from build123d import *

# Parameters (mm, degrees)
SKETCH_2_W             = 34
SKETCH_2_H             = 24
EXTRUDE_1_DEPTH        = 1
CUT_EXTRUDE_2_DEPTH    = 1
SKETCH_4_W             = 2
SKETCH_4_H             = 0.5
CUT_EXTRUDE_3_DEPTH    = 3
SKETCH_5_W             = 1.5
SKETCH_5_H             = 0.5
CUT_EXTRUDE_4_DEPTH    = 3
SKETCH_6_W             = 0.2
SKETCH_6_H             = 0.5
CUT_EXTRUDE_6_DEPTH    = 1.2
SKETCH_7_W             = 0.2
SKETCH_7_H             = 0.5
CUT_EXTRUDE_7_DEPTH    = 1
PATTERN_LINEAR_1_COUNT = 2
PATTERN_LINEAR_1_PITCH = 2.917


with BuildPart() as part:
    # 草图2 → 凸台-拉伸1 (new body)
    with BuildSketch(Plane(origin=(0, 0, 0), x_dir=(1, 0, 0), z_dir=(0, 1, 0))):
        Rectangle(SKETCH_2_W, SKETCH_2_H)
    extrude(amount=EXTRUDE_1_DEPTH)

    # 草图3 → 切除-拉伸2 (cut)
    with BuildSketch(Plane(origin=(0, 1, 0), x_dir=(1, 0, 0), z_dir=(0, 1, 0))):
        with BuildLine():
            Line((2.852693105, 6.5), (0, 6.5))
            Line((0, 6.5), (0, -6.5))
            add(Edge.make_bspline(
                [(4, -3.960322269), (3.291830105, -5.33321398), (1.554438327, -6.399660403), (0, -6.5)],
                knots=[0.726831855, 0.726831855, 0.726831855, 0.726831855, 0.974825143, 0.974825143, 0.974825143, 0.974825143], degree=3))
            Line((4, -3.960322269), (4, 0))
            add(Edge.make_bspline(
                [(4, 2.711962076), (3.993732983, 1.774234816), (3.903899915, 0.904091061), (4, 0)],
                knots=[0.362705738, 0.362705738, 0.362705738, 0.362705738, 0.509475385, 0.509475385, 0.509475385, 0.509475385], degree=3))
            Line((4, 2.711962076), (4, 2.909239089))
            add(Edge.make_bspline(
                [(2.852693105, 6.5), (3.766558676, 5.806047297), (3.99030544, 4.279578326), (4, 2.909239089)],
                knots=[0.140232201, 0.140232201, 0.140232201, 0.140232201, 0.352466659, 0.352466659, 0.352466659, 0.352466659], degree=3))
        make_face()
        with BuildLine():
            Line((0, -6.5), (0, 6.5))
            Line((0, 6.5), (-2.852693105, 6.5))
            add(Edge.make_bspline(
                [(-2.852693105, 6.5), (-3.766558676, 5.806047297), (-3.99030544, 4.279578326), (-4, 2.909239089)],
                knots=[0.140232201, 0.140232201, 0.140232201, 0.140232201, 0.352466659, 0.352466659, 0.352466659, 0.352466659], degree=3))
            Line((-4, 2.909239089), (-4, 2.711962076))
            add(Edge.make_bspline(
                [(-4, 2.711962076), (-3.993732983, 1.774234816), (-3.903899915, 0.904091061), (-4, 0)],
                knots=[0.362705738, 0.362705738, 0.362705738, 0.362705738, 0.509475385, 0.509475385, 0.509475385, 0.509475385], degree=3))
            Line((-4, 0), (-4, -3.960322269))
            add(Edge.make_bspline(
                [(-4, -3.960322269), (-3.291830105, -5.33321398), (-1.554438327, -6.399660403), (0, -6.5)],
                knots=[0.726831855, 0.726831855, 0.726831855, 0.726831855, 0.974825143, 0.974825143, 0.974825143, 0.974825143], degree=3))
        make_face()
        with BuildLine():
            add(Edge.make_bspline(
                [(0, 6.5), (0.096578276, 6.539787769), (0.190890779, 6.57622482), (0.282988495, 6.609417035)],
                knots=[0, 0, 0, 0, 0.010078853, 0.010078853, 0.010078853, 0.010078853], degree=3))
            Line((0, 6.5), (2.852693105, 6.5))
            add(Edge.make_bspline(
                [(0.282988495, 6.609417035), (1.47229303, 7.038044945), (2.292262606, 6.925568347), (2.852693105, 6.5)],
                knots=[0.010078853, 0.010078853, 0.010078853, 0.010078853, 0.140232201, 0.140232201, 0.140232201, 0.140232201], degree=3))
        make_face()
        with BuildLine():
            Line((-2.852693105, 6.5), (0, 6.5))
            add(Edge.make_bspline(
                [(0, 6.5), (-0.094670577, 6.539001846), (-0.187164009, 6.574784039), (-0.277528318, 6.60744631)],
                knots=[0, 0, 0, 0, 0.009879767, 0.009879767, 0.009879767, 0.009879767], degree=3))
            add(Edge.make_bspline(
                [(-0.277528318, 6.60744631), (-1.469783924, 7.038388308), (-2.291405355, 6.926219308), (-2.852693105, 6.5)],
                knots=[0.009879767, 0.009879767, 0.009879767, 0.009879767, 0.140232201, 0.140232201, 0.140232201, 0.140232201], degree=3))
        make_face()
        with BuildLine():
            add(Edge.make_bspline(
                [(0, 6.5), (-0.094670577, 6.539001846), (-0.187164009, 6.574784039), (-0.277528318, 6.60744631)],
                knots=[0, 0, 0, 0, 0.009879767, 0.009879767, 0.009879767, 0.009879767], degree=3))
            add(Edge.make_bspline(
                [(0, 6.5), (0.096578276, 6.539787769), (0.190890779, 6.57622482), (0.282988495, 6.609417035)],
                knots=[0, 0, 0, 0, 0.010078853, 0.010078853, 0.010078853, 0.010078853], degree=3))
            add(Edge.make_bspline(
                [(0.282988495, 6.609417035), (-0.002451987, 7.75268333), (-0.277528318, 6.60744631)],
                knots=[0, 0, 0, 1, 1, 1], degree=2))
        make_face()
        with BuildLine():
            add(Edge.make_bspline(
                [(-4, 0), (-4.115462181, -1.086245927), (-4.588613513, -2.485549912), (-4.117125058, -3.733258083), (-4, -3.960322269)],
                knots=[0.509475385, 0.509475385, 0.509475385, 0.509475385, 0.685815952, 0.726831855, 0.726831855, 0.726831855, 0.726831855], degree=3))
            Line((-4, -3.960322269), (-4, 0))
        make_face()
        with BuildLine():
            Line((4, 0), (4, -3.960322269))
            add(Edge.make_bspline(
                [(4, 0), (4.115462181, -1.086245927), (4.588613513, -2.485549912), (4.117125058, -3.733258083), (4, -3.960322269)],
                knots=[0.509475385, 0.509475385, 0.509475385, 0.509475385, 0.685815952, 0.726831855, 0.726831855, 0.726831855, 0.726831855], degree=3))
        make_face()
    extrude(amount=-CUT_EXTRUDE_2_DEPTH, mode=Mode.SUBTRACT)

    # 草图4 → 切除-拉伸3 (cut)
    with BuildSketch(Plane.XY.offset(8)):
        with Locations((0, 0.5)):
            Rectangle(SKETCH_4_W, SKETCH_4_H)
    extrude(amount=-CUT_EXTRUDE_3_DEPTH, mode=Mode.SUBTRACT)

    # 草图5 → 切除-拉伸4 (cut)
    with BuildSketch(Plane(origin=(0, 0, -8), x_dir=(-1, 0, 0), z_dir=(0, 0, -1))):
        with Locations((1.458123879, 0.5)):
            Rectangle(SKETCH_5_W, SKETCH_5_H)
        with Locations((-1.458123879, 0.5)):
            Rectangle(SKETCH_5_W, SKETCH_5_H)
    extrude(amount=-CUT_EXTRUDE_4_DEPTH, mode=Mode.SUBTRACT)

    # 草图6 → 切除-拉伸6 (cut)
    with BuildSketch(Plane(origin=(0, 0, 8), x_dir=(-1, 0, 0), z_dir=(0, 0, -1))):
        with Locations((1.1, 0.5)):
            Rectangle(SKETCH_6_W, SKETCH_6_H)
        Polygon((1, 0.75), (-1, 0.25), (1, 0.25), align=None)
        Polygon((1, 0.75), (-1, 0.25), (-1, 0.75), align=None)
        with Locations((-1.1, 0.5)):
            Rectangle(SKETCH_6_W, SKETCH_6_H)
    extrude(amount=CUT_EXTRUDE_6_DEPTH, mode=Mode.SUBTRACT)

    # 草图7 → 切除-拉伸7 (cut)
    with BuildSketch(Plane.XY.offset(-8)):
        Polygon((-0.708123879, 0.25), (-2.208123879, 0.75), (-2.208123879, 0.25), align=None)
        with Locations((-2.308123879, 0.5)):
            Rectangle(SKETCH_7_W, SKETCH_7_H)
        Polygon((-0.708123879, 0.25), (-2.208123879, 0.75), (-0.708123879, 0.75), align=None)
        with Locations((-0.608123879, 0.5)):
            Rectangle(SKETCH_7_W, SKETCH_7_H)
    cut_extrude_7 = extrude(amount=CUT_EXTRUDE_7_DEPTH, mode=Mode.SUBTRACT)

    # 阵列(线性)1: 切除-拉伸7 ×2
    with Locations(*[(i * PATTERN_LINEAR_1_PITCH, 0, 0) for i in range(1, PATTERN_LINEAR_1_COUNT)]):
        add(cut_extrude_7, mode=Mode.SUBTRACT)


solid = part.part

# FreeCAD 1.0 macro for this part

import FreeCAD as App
import Part
import Sketcher
Q = App.Units.Quantity

doc = App.newDocument("Part")
params = doc.addObject("Spreadsheet::Sheet", "Params")
for row, (alias, value) in enumerate([
    ("sketch1_width", "34 mm"),
    ("sketch1_height", "24 mm"),
    ("pad1_length", "1 mm"),
    ("pocket1_length", "1 mm"),
    ("sketch3_width", "2 mm"),
    ("sketch3_height", "0.5 mm"),
    ("pocket2_length", "3 mm"),
    ("sketch4_width", "1.5 mm"),
    ("sketch4_height", "0.5 mm"),
    ("pocket3_length", "3 mm"),
    ("sketch5_width", "2.4 mm"),
    ("sketch5_height", "0.5 mm"),
    ("pocket4_length", "1.2 mm"),
    ("sketch6_width", "1.9 mm"),
    ("sketch6_height", "0.5 mm"),
    ("pocket5_length", "1 mm"),
    ("linearpattern_pitch", "2.917 mm"),
], start=1):
    params.set(f"A{row}", alias)
    params.set(f"B{row}", "=" + value)
    params.setAlias(f"B{row}", alias)

body = doc.addObject("PartDesign::Body", "Body")

# Sketch on XZ plane
sketch1 = body.newObject("Sketcher::SketchObject", "Sketch")
sketch1.AttachmentSupport = (doc.getObject("XZ_Plane"), [""])
sketch1.MapMode = "FlatFace"
sketch1.addGeometry([
    Part.LineSegment(App.Vector(-17, -12, 0), App.Vector(-17, 12, 0)),
    Part.LineSegment(App.Vector(-17, 12, 0), App.Vector(17, 12, 0)),
    Part.LineSegment(App.Vector(17, 12, 0), App.Vector(17, -12, 0)),
    Part.LineSegment(App.Vector(17, -12, 0), App.Vector(-17, -12, 0)),
], False)
sketch1.addConstraint([
    Sketcher.Constraint("Coincident", 0, 2, 1, 1),
    Sketcher.Constraint("Coincident", 1, 2, 2, 1),
    Sketcher.Constraint("Coincident", 2, 2, 3, 1),
    Sketcher.Constraint("Coincident", 3, 2, 0, 1),
    Sketcher.Constraint("Vertical", 0),
    Sketcher.Constraint("Horizontal", 1),
    Sketcher.Constraint("Vertical", 2),
    Sketcher.Constraint("Horizontal", 3),
    Sketcher.Constraint("Symmetric", 0, 2, 2, 2, -1, 1),
    Sketcher.Constraint("DistanceX", 1, 1, 1, 2, Q("34 mm")),
    Sketcher.Constraint("DistanceY", 0, 1, 0, 2, Q("24 mm")),
])
sketch1.setExpression("Constraints[9]", "Params.sketch1_width")
sketch1.setExpression("Constraints[10]", "Params.sketch1_height")
pad1 = body.newObject("PartDesign::Pad", "Pad")
pad1.Profile = sketch1
pad1.setExpression("Length", "Params.pad1_length")
pad1.Reversed = True

# Sketch on XZ plane
sketch2 = body.newObject("Sketcher::SketchObject", "Sketch001")
sketch2.AttachmentSupport = (doc.getObject("XZ_Plane"), [""])
sketch2.MapMode = "FlatFace"
sketch2.AttachmentOffset = App.Placement(App.Vector(0, 0, -1), App.Rotation())
sketch2.addGeometry([
    Part.BSplineCurve([App.Vector(-2.852693, -6.5, 0), App.Vector(-3.766559, -5.806047, 0), App.Vector(-3.990305, -4.279578, 0), App.Vector(-4, -2.909239, 0)], [4, 4], [0.140232201, 0.352466659], False, 3, [1, 1, 1, 1], False),  # 0
    Part.LineSegment(App.Vector(-4, -2.909239, 0), App.Vector(-4, -2.711962, 0)),  # 1
    Part.BSplineCurve([App.Vector(-4, -2.711962, 0), App.Vector(-3.993733, -1.774235, 0), App.Vector(-3.9039, -0.904091, 0), App.Vector(-4, 0, 0)], [4, 4], [0.362705738, 0.509475385], False, 3, [1, 1, 1, 1], False),  # 2
    Part.BSplineCurve([App.Vector(-4, 0, 0), App.Vector(-4.115462, 1.086246, 0), App.Vector(-4.588614, 2.48555, 0), App.Vector(-4.117125, 3.733258, 0), App.Vector(-4, 3.960322, 0)], [4, 1, 4], [0.509475385, 0.685815952, 0.726831855], False, 3, [1, 1, 1, 1, 1], False),  # 3
    Part.BSplineCurve([App.Vector(-4, 3.960322, 0), App.Vector(-3.29183, 5.333214, 0), App.Vector(-1.554438, 6.39966, 0), App.Vector(0, 6.5, 0)], [4, 4], [0.726831855, 0.974825143], False, 3, [1, 1, 1, 1], False),  # 4
    Part.BSplineCurve([App.Vector(4, 3.960322, 0), App.Vector(3.29183, 5.333214, 0), App.Vector(1.554438, 6.39966, 0), App.Vector(0, 6.5, 0)], [4, 4], [0.726831855, 0.974825143], False, 3, [1, 1, 1, 1], False),  # 5
    Part.BSplineCurve([App.Vector(4, 0, 0), App.Vector(4.115462, 1.086246, 0), App.Vector(4.588614, 2.48555, 0), App.Vector(4.117125, 3.733258, 0), App.Vector(4, 3.960322, 0)], [4, 1, 4], [0.509475385, 0.685815952, 0.726831855], False, 3, [1, 1, 1, 1, 1], False),  # 6
    Part.BSplineCurve([App.Vector(4, -2.711962, 0), App.Vector(3.993733, -1.774235, 0), App.Vector(3.9039, -0.904091, 0), App.Vector(4, 0, 0)], [4, 4], [0.362705738, 0.509475385], False, 3, [1, 1, 1, 1], False),  # 7
    Part.LineSegment(App.Vector(4, -2.711962, 0), App.Vector(4, -2.909239, 0)),  # 8
    Part.BSplineCurve([App.Vector(2.852693, -6.5, 0), App.Vector(3.766559, -5.806047, 0), App.Vector(3.990305, -4.279578, 0), App.Vector(4, -2.909239, 0)], [4, 4], [0.140232201, 0.352466659], False, 3, [1, 1, 1, 1], False),  # 9
    Part.BSplineCurve([App.Vector(0.282988, -6.609417, 0), App.Vector(1.472293, -7.038045, 0), App.Vector(2.292263, -6.925568, 0), App.Vector(2.852693, -6.5, 0)], [4, 4], [0.010078853, 0.140232201], False, 3, [1, 1, 1, 1], False),  # 10
    Part.BSplineCurve([App.Vector(0.282988, -6.609417, 0), App.Vector(-0.002452, -7.752683, 0), App.Vector(-0.277528, -6.607446, 0)], [3, 3], [0, 1], False, 2, [1, 1, 1], False),  # 11
    Part.BSplineCurve([App.Vector(-0.277528, -6.607446, 0), App.Vector(-1.469784, -7.038388, 0), App.Vector(-2.291405, -6.926219, 0), App.Vector(-2.852693, -6.5, 0)], [4, 4], [0.009879767, 0.140232201], False, 3, [1, 1, 1, 1], False),  # 12
], False)
sketch2.addConstraint([
    Sketcher.Constraint("Block", 0),
    Sketcher.Constraint("Block", 2),
    Sketcher.Constraint("Block", 3),
    Sketcher.Constraint("Block", 4),
    Sketcher.Constraint("Block", 5),
    Sketcher.Constraint("Block", 6),
    Sketcher.Constraint("Block", 7),
    Sketcher.Constraint("Block", 9),
    Sketcher.Constraint("Block", 10),
    Sketcher.Constraint("Block", 11),
    Sketcher.Constraint("Block", 12),
    Sketcher.Constraint("Coincident", 0, 2, 1, 1),
    Sketcher.Constraint("Coincident", 1, 2, 2, 1),
    Sketcher.Constraint("Coincident", 7, 1, 8, 1),
    Sketcher.Constraint("Coincident", 8, 2, 9, 2),
])
pocket1 = body.newObject("PartDesign::Pocket", "Pocket")
pocket1.Profile = sketch2
pocket1.setExpression("Length", "Params.pocket1_length")
pocket1.Reversed = True

# Sketch on XY plane
sketch3 = body.newObject("Sketcher::SketchObject", "Sketch002")
sketch3.AttachmentSupport = (doc.getObject("XY_Plane"), [""])
sketch3.MapMode = "FlatFace"
sketch3.AttachmentOffset = App.Placement(App.Vector(0, 0, 8), App.Rotation())
sketch3.addGeometry([
    Part.LineSegment(App.Vector(-1, 0.8, 0), App.Vector(-1, 0.2, 0)),
    Part.LineSegment(App.Vector(-1, 0.2, 0), App.Vector(1, 0.2, 0)),
    Part.LineSegment(App.Vector(1, 0.2, 0), App.Vector(1, 0.8, 0)),
    Part.LineSegment(App.Vector(1, 0.8, 0), App.Vector(-1, 0.8, 0)),
], False)
sketch3.addConstraint([
    Sketcher.Constraint("Coincident", 0, 2, 1, 1),
    Sketcher.Constraint("Coincident", 1, 2, 2, 1),
    Sketcher.Constraint("Coincident", 2, 2, 3, 1),
    Sketcher.Constraint("Coincident", 3, 2, 0, 1),
    Sketcher.Constraint("Vertical", 0),
    Sketcher.Constraint("Horizontal", 1),
    Sketcher.Constraint("Vertical", 2),
    Sketcher.Constraint("Horizontal", 3),
    Sketcher.Constraint("DistanceX", 1, 1, 1, 2, Q("2 mm")),
    Sketcher.Constraint("DistanceY", 0, 2, 0, 1, Q("0.5 mm")),
    Sketcher.Constraint("DistanceX", 0, 2, -1, 1, Q("1 mm")),
    Sketcher.Constraint("DistanceY", -1, 1, 0, 2, Q("0.25 mm")),
])
sketch3.setExpression("Constraints[8]", "Params.sketch3_width")
sketch3.setExpression("Constraints[9]", "Params.sketch3_height")
pocket2 = body.newObject("PartDesign::Pocket", "Pocket001")
pocket2.Profile = sketch3
pocket2.setExpression("Length", "Params.pocket2_length")

# Sketch on XY plane
sketch4 = body.newObject("Sketcher::SketchObject", "Sketch003")
sketch4.AttachmentSupport = (doc.getObject("XY_Plane"), [""])
sketch4.MapMode = "FlatFace"
sketch4.AttachmentOffset = App.Placement(App.Vector(0, 0, -8), App.Rotation())
sketch4.addGeometry([
    Part.LineSegment(App.Vector(-0.7, 0.8, 0), App.Vector(-0.7, 0.2, 0)),  # 0
    Part.LineSegment(App.Vector(-0.7, 0.2, 0), App.Vector(-2.2, 0.2, 0)),  # 1
    Part.LineSegment(App.Vector(-2.2, 0.2, 0), App.Vector(-2.2, 0.8, 0)),  # 2
    Part.LineSegment(App.Vector(-2.2, 0.8, 0), App.Vector(-0.7, 0.8, 0)),  # 3
    Part.LineSegment(App.Vector(2.2, 0.8, 0), App.Vector(2.2, 0.2, 0)),  # 4
    Part.LineSegment(App.Vector(2.2, 0.2, 0), App.Vector(0.7, 0.2, 0)),  # 5
    Part.LineSegment(App.Vector(0.7, 0.2, 0), App.Vector(0.7, 0.8, 0)),  # 6
    Part.LineSegment(App.Vector(0.7, 0.8, 0), App.Vector(2.2, 0.8, 0)),  # 7
], False)
sketch4.addConstraint([
    Sketcher.Constraint("Coincident", 0, 2, 1, 1),
    Sketcher.Constraint("Coincident", 1, 2, 2, 1),
    Sketcher.Constraint("Coincident", 2, 2, 3, 1),
    Sketcher.Constraint("Coincident", 3, 2, 0, 1),
    Sketcher.Constraint("Coincident", 4, 2, 5, 1),
    Sketcher.Constraint("Coincident", 5, 2, 6, 1),
    Sketcher.Constraint("Coincident", 6, 2, 7, 1),
    Sketcher.Constraint("Coincident", 7, 2, 4, 1),
    Sketcher.Constraint("Vertical", 0),
    Sketcher.Constraint("Horizontal", 1),
    Sketcher.Constraint("Vertical", 2),
    Sketcher.Constraint("Horizontal", 3),
    Sketcher.Constraint("Vertical", 4),
    Sketcher.Constraint("Horizontal", 5),
    Sketcher.Constraint("Vertical", 6),
    Sketcher.Constraint("Horizontal", 7),
    Sketcher.Constraint("Symmetric", 1, 2, 4, 2, -2),
    Sketcher.Constraint("Symmetric", 3, 2, 6, 2, -2),
    Sketcher.Constraint("DistanceX", 1, 2, 1, 1, Q("1.5 mm")),
    Sketcher.Constraint("DistanceY", 0, 2, 0, 1, Q("0.5 mm")),
    Sketcher.Constraint("DistanceY", -1, 1, 0, 2, Q("0.25 mm")),
    Sketcher.Constraint("DistanceX", 0, 2, -1, 1, Q("0.708124 mm")),
])
sketch4.setExpression("Constraints[18]", "Params.sketch4_width")
sketch4.setExpression("Constraints[19]", "Params.sketch4_height")
pocket3 = body.newObject("PartDesign::Pocket", "Pocket002")
pocket3.Profile = sketch4
pocket3.setExpression("Length", "Params.pocket3_length")
pocket3.Reversed = True

# Sketch on XY plane
sketch5 = body.newObject("Sketcher::SketchObject", "Sketch004")
sketch5.AttachmentSupport = (doc.getObject("XY_Plane"), [""])
sketch5.MapMode = "FlatFace"
sketch5.AttachmentOffset = App.Placement(App.Vector(0, 0, 8), App.Rotation())
sketch5.addGeometry([
    Part.LineSegment(App.Vector(-1.2, 0.2, 0), App.Vector(-1.2, 0.8, 0)),
    Part.LineSegment(App.Vector(-1.2, 0.8, 0), App.Vector(1.2, 0.8, 0)),
    Part.LineSegment(App.Vector(1.2, 0.8, 0), App.Vector(1.2, 0.2, 0)),
    Part.LineSegment(App.Vector(1.2, 0.2, 0), App.Vector(-1.2, 0.2, 0)),
], False)
sketch5.addConstraint([
    Sketcher.Constraint("Coincident", 0, 2, 1, 1),
    Sketcher.Constraint("Coincident", 1, 2, 2, 1),
    Sketcher.Constraint("Coincident", 2, 2, 3, 1),
    Sketcher.Constraint("Coincident", 3, 2, 0, 1),
    Sketcher.Constraint("Vertical", 0),
    Sketcher.Constraint("Horizontal", 1),
    Sketcher.Constraint("Vertical", 2),
    Sketcher.Constraint("Horizontal", 3),
    Sketcher.Constraint("DistanceX", 1, 1, 1, 2, Q("2.4 mm")),
    Sketcher.Constraint("DistanceY", 0, 1, 0, 2, Q("0.5 mm")),
    Sketcher.Constraint("DistanceX", 0, 2, -1, 1, Q("1.2 mm")),
    Sketcher.Constraint("DistanceY", -1, 1, 0, 2, Q("0.75 mm")),
])
sketch5.setExpression("Constraints[8]", "Params.sketch5_width")
sketch5.setExpression("Constraints[9]", "Params.sketch5_height")
pocket4 = body.newObject("PartDesign::Pocket", "Pocket003")
pocket4.Profile = sketch5
pocket4.setExpression("Length", "Params.pocket4_length")

# Sketch on XY plane
sketch6 = body.newObject("Sketcher::SketchObject", "Sketch005")
sketch6.AttachmentSupport = (doc.getObject("XY_Plane"), [""])
sketch6.MapMode = "FlatFace"
sketch6.AttachmentOffset = App.Placement(App.Vector(0, 0, -8), App.Rotation())
sketch6.addGeometry([
    Part.LineSegment(App.Vector(-2.4, 0.8, 0), App.Vector(-2.4, 0.2, 0)),
    Part.LineSegment(App.Vector(-2.4, 0.2, 0), App.Vector(-0.5, 0.2, 0)),
    Part.LineSegment(App.Vector(-0.5, 0.2, 0), App.Vector(-0.5, 0.8, 0)),
    Part.LineSegment(App.Vector(-0.5, 0.8, 0), App.Vector(-2.4, 0.8, 0)),
], False)
sketch6.addConstraint([
    Sketcher.Constraint("Coincident", 0, 2, 1, 1),
    Sketcher.Constraint("Coincident", 1, 2, 2, 1),
    Sketcher.Constraint("Coincident", 2, 2, 3, 1),
    Sketcher.Constraint("Coincident", 3, 2, 0, 1),
    Sketcher.Constraint("Vertical", 0),
    Sketcher.Constraint("Horizontal", 1),
    Sketcher.Constraint("Vertical", 2),
    Sketcher.Constraint("Horizontal", 3),
    Sketcher.Constraint("DistanceX", 1, 1, 1, 2, Q("1.9 mm")),
    Sketcher.Constraint("DistanceY", 0, 2, 0, 1, Q("0.5 mm")),
    Sketcher.Constraint("DistanceY", -1, 1, 0, 2, Q("0.25 mm")),
    Sketcher.Constraint("DistanceX", 0, 2, -1, 1, Q("2.408124 mm")),
])
sketch6.setExpression("Constraints[8]", "Params.sketch6_width")
sketch6.setExpression("Constraints[9]", "Params.sketch6_height")
pocket5 = body.newObject("PartDesign::Pocket", "Pocket004")
pocket5.Profile = sketch6
pocket5.setExpression("Length", "Params.pocket5_length")
pocket5.Reversed = True
doc.recompute()

linearpattern = body.newObject("PartDesign::LinearPattern", "LinearPattern")
linearpattern.Originals = [pocket5]
linearpattern.Direction = (doc.getObject("X_Axis"), [""])
linearpattern.Mode = "offset"
linearpattern.setExpression("Offset", "Params.linearpattern_pitch")
linearpattern.Occurrences = 2
body.Tip = linearpattern

doc.recompute()
